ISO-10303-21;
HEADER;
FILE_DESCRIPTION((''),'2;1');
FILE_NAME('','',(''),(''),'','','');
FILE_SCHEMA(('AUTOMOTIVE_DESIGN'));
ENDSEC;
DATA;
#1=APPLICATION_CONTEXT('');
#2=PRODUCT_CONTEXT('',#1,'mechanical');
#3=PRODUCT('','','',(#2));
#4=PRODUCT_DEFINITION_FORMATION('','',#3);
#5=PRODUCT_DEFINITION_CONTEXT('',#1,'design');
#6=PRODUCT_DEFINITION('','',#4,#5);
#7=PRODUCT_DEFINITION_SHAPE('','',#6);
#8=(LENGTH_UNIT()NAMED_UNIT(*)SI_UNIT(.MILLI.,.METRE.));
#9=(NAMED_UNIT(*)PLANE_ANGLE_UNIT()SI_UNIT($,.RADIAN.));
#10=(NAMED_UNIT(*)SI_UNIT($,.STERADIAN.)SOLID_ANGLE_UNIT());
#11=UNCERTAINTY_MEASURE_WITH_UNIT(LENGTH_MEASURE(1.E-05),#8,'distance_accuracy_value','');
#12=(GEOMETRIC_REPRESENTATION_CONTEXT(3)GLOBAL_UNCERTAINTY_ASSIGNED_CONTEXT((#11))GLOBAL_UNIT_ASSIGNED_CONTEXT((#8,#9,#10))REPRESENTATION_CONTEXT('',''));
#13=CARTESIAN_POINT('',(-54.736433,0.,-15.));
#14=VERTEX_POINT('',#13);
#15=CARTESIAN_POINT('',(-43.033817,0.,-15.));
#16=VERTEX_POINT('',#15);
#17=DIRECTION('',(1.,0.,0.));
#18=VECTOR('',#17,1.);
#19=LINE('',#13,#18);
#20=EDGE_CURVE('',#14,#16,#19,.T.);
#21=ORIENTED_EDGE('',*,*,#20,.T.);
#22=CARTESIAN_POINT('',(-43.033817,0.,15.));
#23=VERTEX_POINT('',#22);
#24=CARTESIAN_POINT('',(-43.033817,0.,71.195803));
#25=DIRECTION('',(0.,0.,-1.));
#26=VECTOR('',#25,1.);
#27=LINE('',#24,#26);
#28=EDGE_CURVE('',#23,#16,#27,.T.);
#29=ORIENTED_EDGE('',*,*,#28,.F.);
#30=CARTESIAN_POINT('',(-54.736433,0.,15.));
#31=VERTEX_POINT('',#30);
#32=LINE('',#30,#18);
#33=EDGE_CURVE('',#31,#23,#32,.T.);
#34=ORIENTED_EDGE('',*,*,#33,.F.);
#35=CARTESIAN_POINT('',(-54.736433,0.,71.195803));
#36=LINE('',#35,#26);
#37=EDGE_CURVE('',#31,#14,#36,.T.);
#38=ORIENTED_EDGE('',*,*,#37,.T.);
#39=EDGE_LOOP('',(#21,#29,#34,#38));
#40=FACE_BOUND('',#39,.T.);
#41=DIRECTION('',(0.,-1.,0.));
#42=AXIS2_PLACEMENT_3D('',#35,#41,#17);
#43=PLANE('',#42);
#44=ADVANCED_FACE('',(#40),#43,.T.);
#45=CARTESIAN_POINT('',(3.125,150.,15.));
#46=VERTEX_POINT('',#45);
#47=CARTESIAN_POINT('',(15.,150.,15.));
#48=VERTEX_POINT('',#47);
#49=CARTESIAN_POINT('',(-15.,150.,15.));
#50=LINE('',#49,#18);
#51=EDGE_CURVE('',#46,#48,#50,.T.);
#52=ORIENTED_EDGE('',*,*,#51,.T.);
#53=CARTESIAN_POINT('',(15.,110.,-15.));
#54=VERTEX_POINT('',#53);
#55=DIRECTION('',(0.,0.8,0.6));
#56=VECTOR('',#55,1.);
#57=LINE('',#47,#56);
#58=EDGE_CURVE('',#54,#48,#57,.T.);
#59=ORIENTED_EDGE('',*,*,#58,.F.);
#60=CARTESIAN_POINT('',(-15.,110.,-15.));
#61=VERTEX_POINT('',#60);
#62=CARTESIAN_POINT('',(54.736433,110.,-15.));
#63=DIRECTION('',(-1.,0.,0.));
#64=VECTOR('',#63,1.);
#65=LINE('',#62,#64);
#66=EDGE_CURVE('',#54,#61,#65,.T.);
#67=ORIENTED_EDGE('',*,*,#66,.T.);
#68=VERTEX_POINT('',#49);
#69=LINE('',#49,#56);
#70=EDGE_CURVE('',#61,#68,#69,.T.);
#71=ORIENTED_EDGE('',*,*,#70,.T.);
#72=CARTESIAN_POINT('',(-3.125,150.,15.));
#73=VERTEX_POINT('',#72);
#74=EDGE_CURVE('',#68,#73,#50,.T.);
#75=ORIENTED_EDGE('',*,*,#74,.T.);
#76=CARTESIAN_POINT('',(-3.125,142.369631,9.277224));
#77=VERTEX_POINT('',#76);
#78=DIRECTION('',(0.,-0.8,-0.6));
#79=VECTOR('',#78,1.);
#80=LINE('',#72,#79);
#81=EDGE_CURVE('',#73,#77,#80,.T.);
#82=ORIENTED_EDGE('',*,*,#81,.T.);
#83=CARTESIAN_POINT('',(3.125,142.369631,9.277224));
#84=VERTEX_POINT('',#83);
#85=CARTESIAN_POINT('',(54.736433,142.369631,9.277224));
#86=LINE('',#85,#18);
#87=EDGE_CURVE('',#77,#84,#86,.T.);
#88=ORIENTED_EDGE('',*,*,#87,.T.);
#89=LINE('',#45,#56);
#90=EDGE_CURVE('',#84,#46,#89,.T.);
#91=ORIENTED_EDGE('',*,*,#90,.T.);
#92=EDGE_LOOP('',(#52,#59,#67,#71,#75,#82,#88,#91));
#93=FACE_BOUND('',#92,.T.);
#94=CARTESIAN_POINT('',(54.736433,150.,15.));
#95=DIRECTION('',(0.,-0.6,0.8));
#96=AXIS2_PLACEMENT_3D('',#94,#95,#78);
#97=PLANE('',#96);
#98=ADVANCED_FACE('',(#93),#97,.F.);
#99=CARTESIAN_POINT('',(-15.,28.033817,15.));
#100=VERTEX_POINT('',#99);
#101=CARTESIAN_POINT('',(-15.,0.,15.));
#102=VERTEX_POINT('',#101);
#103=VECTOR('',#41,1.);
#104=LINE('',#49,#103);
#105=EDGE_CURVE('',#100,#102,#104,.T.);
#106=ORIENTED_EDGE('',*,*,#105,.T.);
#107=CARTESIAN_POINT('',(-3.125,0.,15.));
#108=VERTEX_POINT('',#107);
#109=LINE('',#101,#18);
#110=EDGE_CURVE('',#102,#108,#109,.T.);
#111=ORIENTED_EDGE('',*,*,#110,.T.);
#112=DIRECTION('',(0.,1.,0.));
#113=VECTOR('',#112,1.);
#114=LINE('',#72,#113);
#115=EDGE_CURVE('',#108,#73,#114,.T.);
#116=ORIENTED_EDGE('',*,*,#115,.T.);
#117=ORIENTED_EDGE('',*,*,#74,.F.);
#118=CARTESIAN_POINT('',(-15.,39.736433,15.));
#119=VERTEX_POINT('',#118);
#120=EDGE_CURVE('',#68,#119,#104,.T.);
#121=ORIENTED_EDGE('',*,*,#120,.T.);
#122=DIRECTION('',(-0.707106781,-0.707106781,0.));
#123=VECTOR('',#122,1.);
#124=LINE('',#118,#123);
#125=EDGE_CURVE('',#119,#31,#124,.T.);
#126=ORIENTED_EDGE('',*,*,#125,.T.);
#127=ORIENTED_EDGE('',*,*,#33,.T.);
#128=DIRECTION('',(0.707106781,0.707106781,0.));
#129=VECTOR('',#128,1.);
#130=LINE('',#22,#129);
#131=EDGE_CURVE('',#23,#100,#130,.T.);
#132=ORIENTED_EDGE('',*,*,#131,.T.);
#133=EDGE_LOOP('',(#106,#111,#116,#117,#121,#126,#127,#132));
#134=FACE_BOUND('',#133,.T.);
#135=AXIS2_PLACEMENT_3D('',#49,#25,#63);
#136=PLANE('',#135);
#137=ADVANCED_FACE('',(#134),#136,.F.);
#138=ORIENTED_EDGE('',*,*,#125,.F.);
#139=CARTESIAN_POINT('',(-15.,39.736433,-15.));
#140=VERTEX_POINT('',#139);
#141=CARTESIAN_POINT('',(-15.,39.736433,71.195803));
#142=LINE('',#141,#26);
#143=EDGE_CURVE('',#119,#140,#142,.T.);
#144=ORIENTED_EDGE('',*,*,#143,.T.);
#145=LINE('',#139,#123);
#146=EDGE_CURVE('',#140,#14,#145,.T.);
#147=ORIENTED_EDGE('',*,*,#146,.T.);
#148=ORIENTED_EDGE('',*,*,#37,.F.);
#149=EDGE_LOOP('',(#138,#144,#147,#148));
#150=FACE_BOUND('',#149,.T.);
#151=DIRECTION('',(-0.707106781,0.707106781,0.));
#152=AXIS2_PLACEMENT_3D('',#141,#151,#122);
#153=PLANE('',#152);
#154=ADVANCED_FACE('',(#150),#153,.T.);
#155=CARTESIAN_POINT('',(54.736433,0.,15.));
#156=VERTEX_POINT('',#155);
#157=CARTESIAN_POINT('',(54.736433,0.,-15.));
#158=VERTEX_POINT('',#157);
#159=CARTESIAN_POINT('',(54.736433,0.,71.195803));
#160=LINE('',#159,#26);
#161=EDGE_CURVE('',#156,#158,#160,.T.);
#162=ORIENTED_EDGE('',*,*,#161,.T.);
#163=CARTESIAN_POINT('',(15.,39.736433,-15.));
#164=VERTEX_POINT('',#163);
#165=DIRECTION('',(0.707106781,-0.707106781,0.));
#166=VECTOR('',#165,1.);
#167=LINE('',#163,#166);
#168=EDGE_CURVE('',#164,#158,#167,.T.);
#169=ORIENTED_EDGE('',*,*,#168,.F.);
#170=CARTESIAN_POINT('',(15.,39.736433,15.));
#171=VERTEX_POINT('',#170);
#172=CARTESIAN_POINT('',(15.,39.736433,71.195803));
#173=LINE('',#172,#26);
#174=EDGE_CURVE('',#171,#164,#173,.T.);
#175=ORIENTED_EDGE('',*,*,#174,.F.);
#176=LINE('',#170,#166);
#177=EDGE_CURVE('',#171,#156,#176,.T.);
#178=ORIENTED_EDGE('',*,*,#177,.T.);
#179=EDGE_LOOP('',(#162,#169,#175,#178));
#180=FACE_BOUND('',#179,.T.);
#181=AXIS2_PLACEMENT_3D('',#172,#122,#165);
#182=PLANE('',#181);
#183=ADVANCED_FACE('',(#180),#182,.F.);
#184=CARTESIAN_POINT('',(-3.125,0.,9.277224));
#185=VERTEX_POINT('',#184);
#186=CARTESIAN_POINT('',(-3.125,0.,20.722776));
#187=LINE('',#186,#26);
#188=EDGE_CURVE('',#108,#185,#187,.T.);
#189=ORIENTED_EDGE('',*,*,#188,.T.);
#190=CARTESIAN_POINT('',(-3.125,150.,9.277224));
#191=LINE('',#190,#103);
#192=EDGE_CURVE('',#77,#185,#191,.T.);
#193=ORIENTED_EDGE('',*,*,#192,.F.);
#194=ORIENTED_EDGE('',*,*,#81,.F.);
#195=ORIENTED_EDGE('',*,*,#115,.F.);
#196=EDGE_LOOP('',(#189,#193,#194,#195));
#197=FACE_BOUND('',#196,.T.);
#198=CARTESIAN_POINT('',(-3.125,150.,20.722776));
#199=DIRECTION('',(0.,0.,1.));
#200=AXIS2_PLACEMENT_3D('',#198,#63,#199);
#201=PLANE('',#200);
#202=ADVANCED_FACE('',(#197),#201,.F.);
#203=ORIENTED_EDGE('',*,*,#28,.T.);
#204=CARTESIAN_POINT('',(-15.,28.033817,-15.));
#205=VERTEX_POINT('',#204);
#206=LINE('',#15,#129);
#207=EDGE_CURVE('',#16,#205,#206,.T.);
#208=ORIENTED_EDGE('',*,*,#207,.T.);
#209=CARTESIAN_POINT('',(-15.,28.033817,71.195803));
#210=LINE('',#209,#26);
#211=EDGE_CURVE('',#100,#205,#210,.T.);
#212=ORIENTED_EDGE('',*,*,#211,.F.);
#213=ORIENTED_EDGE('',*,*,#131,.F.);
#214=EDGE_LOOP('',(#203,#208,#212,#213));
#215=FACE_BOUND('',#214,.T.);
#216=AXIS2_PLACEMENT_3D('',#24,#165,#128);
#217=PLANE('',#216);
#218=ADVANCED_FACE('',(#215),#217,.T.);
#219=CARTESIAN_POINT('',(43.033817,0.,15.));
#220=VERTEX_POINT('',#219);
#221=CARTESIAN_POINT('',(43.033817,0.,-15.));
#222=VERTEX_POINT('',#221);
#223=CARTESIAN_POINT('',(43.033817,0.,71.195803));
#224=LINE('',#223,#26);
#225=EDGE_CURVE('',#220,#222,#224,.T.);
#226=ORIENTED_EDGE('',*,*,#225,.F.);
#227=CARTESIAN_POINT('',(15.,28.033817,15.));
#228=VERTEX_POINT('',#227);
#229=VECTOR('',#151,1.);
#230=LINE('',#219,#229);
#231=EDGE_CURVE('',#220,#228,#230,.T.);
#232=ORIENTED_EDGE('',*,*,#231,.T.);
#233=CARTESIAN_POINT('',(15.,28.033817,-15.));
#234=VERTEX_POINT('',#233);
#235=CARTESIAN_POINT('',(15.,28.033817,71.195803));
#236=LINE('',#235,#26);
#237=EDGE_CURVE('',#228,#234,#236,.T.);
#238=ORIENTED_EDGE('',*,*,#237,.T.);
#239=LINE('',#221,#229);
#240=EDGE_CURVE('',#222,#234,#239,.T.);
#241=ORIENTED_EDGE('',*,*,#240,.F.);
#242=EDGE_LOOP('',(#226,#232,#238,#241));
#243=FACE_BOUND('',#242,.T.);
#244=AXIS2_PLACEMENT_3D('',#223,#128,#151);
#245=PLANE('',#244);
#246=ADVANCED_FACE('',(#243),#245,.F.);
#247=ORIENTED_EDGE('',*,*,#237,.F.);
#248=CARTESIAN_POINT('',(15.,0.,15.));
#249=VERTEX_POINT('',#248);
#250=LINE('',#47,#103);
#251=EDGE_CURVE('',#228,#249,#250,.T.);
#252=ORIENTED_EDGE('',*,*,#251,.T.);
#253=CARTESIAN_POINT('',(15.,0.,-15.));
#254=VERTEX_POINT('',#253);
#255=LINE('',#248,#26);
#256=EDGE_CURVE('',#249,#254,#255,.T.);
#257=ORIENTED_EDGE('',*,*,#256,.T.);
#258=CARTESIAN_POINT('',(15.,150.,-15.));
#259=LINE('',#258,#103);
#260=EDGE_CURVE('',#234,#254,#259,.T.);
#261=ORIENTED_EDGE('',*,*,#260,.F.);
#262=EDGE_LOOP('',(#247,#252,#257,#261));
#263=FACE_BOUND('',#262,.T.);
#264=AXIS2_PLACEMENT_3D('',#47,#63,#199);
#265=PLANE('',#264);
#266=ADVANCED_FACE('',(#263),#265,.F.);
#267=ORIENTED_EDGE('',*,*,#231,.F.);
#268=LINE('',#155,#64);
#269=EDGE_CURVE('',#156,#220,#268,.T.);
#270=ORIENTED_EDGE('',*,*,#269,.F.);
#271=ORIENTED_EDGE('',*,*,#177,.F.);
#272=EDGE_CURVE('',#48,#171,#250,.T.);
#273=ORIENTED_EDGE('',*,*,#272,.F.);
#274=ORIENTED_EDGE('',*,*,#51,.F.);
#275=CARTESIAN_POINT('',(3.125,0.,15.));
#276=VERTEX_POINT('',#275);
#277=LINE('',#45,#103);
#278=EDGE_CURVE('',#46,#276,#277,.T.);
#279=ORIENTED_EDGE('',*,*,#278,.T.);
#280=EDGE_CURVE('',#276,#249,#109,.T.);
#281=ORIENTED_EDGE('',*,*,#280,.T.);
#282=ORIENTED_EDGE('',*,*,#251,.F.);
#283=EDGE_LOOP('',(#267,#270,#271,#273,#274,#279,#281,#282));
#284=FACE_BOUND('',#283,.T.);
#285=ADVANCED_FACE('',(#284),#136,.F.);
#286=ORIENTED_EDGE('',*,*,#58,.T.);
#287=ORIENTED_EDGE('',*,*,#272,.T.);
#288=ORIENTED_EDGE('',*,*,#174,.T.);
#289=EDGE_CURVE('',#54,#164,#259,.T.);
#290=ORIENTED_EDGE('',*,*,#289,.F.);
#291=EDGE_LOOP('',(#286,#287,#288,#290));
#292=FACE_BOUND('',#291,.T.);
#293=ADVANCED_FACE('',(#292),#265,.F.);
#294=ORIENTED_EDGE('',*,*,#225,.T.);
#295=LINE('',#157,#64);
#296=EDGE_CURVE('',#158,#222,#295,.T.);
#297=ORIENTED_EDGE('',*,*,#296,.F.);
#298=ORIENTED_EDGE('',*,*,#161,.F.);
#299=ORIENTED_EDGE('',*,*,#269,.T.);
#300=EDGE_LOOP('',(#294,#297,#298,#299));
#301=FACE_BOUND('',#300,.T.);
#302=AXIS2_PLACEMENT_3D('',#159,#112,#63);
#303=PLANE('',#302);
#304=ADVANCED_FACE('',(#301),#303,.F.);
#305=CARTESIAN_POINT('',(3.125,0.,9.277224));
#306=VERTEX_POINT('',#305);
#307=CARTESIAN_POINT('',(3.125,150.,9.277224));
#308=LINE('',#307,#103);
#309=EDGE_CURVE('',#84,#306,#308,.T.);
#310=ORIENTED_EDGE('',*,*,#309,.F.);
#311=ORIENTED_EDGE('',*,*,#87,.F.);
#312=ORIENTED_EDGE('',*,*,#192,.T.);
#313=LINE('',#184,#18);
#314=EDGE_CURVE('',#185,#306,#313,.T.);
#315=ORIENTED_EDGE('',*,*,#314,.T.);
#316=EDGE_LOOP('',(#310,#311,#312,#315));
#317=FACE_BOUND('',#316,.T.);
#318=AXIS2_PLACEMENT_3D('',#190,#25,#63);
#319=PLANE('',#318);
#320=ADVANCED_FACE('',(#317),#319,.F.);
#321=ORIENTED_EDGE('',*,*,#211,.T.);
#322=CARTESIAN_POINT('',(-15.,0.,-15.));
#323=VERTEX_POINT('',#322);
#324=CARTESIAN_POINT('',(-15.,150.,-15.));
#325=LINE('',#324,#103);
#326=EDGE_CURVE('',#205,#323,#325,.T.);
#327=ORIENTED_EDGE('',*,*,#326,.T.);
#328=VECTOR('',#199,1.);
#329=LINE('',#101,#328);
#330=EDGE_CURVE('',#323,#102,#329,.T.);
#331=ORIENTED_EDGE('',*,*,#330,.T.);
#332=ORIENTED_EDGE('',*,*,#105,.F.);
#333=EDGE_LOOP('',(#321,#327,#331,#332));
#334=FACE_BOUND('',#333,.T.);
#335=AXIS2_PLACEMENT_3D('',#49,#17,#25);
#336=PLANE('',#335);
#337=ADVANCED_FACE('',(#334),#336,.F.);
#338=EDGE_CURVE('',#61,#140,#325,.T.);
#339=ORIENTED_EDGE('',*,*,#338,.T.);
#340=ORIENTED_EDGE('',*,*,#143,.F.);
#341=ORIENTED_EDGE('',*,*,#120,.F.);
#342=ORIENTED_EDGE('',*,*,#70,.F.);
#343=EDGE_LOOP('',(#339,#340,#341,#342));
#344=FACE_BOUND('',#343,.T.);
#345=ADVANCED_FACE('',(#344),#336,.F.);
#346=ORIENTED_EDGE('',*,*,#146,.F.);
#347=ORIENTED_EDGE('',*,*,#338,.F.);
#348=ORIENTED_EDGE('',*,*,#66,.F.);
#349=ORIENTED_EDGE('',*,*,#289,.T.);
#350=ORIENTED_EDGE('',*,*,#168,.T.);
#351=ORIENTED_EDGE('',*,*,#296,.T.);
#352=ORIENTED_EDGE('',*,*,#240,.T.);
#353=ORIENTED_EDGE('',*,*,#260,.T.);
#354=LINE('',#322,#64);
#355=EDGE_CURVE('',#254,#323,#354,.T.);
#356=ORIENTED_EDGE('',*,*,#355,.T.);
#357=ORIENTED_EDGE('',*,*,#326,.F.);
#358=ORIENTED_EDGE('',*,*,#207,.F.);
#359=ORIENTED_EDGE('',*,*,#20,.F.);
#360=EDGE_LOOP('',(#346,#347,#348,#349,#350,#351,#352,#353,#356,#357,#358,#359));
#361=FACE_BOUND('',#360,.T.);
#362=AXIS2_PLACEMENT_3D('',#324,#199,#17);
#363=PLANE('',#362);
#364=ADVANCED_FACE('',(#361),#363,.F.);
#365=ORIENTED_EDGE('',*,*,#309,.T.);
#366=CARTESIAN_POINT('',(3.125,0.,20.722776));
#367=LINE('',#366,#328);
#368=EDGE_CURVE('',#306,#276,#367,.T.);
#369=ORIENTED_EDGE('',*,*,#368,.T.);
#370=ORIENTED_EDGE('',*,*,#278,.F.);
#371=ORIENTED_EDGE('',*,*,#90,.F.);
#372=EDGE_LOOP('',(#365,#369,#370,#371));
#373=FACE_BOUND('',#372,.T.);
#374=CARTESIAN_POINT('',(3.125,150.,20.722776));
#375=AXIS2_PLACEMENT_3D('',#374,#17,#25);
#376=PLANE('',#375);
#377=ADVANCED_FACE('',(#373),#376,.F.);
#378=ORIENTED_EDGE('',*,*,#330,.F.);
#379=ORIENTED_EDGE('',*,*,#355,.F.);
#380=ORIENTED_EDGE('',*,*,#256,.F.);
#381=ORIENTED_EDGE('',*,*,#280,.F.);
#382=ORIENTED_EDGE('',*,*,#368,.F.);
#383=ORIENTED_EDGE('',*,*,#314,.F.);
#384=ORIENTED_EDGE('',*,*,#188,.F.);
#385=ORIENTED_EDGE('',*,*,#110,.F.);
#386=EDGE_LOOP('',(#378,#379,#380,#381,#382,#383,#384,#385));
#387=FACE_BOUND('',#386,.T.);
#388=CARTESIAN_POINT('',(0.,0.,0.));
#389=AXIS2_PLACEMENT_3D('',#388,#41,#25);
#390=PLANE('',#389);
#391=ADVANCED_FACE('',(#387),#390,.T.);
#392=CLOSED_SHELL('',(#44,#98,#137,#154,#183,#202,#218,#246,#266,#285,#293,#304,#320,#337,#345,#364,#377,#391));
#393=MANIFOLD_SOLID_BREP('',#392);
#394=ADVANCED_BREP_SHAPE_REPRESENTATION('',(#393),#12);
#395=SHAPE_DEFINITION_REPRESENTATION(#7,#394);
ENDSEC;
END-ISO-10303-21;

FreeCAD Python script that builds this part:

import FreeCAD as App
import Part
import Sketcher

V = App.Vector

doc = App.newDocument("Part")
body = doc.addObject("PartDesign::Body", "Body")

sketch1 = doc.addObject("Sketcher::SketchObject", "Sketch")
body.addObject(sketch1)
sketch1.AttachmentSupport = (doc.XZ_Plane, [""])
sketch1.MapMode = "FlatFace"
sketch1.addGeometry(Part.LineSegment(V(-15, -15, 0), V(-15, 15, 0)), False)
sketch1.addGeometry(Part.LineSegment(V(-15, 15, 0), V(15, 15, 0)), False)
sketch1.addGeometry(Part.LineSegment(V(15, 15, 0), V(15, -15, 0)), False)
sketch1.addGeometry(Part.LineSegment(V(15, -15, 0), V(-15, -15, 0)), False)
sketch1.addConstraint(Sketcher.Constraint("Coincident", 0, 2, 1, 1))
sketch1.addConstraint(Sketcher.Constraint("Coincident", 1, 2, 2, 1))
sketch1.addConstraint(Sketcher.Constraint("Coincident", 2, 2, 3, 1))
sketch1.addConstraint(Sketcher.Constraint("Coincident", 3, 2, 0, 1))
sketch1.addConstraint(Sketcher.Constraint("Vertical", 0))
sketch1.addConstraint(Sketcher.Constraint("Horizontal", 1))
sketch1.addConstraint(Sketcher.Constraint("Vertical", 2))
sketch1.addConstraint(Sketcher.Constraint("Horizontal", 3))
sketch1.addConstraint(Sketcher.Constraint("Symmetric", 0, 2, 2, 2, -1, 1))
sketch1.addConstraint(Sketcher.Constraint("Equal", 3, 0))
sketch1.addConstraint(Sketcher.Constraint("DistanceX", 1, 1, 1, 2, 30.0))
pad1 = doc.addObject("PartDesign::Pad", "Pad")
body.addObject(pad1)
pad1.Profile = sketch1
pad1.Length = 150
pad1.Reversed = True

sketch2 = doc.addObject("Sketcher::SketchObject", "Sketch001")
body.addObject(sketch2)
sketch2.AttachmentSupport = (doc.XY_Plane, [""])
sketch2.MapMode = "FlatFace"
sketch2.addGeometry(Part.LineSegment(V(55, 0, 0), V(15, 40, 0)), False)
sketch2.addGeometry(Part.LineSegment(V(15, 40, 0), V(15, 28, 0)), False)
sketch2.addGeometry(Part.LineSegment(V(15, 28, 0), V(43, 0, 0)), False)
sketch2.addGeometry(Part.LineSegment(V(43, 0, 0), V(55, 0, 0)), False)
sketch2.addConstraint(Sketcher.Constraint("Coincident", 0, 2, 1, 1))
sketch2.addConstraint(Sketcher.Constraint("Coincident", 1, 2, 2, 1))
sketch2.addConstraint(Sketcher.Constraint("Coincident", 2, 2, 3, 1))
sketch2.addConstraint(Sketcher.Constraint("Coincident", 3, 2, 0, 1))
sketch2.addConstraint(Sketcher.Constraint("Vertical", 1))
sketch2.addConstraint(Sketcher.Constraint("Horizontal", 3))
sketch2.addConstraint(Sketcher.Constraint("PointOnObject", 2, 2, -1))
sketch2.addConstraint(Sketcher.Constraint("Parallel", 0, 2))
sketch2.addConstraint(Sketcher.Constraint("Equal", 3, 1))
sketch2.addConstraint(Sketcher.Constraint("DistanceX", -1, 1, 0, 2, 15.0))
sketch2.addConstraint(Sketcher.Constraint("DistanceX", 3, 1, 3, 2, 11.702616))
sketch2.addConstraint(Sketcher.Constraint("Distance", 0, 56.195803))
pad2 = doc.addObject("PartDesign::Pad", "Pad001")
body.addObject(pad2)
pad2.Profile = sketch2
pad2.Length = 30
pad2.Midplane = True
doc.recompute()

mirrored = doc.addObject("PartDesign::Mirrored", "Mirrored")
body.addObject(mirrored)
mirrored.Originals = [pad2]
mirrored.MirrorPlane = (doc.YZ_Plane, [""])
body.Tip = mirrored

sketch3 = doc.addObject("Sketcher::SketchObject", "Sketch002")
body.addObject(sketch3)
sketch3.AttachmentSupport = (doc.YZ_Plane, [""])
sketch3.MapMode = "FlatFace"
sketch3.AttachmentOffset = App.Placement(V(0, 0, -15), App.Rotation())
sketch3.addGeometry(Part.LineSegment(V(110, -15, 0), V(150, 15, 0)), False)
sketch3.addGeometry(Part.LineSegment(V(150, 15, 0), V(150, -15, 0)), False)
sketch3.addGeometry(Part.LineSegment(V(150, -15, 0), V(110, -15, 0)), False)
sketch3.addConstraint(Sketcher.Constraint("Coincident", 0, 2, 1, 1))
sketch3.addConstraint(Sketcher.Constraint("Coincident", 1, 2, 2, 1))
sketch3.addConstraint(Sketcher.Constraint("Coincident", 2, 2, 0, 1))
sketch3.addConstraint(Sketcher.Constraint("Vertical", 1))
sketch3.addConstraint(Sketcher.Constraint("Horizontal", 2))
sketch3.addConstraint(Sketcher.Constraint("DistanceX", 2, 2, 2, 1, 40.0))
sketch3.addConstraint(Sketcher.Constraint("DistanceY", 1, 2, 1, 1, 30.0))
sketch3.addConstraint(Sketcher.Constraint("DistanceX", -1, 1, 0, 2, 150.0))
sketch3.addConstraint(Sketcher.Constraint("DistanceY", -1, 1, 0, 2, 15.0))
pocket1 = doc.addObject("PartDesign::Pocket", "Pocket")
body.addObject(pocket1)
pocket1.Profile = sketch3
pocket1.Type = "ThroughAll"
pocket1.Reversed = True

sketch4 = doc.addObject("Sketcher::SketchObject", "Sketch003")
body.addObject(sketch4)
sketch4.AttachmentSupport = (doc.XZ_Plane, [""])
sketch4.MapMode = "FlatFace"
sketch4.addGeometry(Part.LineSegment(V(-3, 21, 0), V(-3, 9, 0)), False)
sketch4.addGeometry(Part.LineSegment(V(-3, 9, 0), V(3, 9, 0)), False)
sketch4.addGeometry(Part.LineSegment(V(3, 9, 0), V(3, 21, 0)), False)
sketch4.addGeometry(Part.LineSegment(V(3, 21, 0), V(-3, 21, 0)), False)
sketch4.addConstraint(Sketcher.Constraint("Coincident", 0, 2, 1, 1))
sketch4.addConstraint(Sketcher.Constraint("Coincident", 1, 2, 2, 1))
sketch4.addConstraint(Sketcher.Constraint("Coincident", 2, 2, 3, 1))
sketch4.addConstraint(Sketcher.Constraint("Coincident", 3, 2, 0, 1))
sketch4.addConstraint(Sketcher.Constraint("Vertical", 0))
sketch4.addConstraint(Sketcher.Constraint("Horizontal", 1))
sketch4.addConstraint(Sketcher.Constraint("Vertical", 2))
sketch4.addConstraint(Sketcher.Constraint("Horizontal", 3))
sketch4.addConstraint(Sketcher.Constraint("DistanceX", 1, 1, 1, 2, 6.25))
sketch4.addConstraint(Sketcher.Constraint("DistanceX", 0, 2, -1, 1, 3.125))
sketch4.addConstraint(Sketcher.Constraint("DistanceY", 0, 2, 0, 1, 11.445553))
sketch4.addConstraint(Sketcher.Constraint("DistanceY", -1, 1, 0, 2, 9.277224))
pocket2 = doc.addObject("PartDesign::Pocket", "Pocket001")
body.addObject(pocket2)
pocket2.Profile = sketch4
pocket2.Type = "ThroughAll"

doc.recompute()
